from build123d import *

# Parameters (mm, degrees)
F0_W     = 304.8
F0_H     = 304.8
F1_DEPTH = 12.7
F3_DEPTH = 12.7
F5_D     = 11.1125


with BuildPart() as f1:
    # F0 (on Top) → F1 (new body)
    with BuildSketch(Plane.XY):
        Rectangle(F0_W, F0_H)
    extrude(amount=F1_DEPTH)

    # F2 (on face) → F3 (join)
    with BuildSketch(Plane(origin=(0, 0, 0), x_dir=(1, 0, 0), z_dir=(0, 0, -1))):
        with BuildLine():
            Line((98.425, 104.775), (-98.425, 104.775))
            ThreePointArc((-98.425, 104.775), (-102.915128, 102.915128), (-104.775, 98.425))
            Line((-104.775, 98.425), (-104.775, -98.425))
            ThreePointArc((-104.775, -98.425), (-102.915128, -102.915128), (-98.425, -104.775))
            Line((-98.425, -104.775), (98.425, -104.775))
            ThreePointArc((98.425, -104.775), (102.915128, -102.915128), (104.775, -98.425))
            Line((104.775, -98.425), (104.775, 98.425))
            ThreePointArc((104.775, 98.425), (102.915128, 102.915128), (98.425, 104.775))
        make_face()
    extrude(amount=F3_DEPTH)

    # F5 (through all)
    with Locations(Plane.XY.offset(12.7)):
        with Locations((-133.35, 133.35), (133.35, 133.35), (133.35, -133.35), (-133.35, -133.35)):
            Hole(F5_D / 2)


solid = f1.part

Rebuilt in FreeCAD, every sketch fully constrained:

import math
import FreeCAD as App
import Part
import Sketcher
Q = App.Units.Quantity


def add_polygon(sketch, points):
    """Adds a closed chain of lines whose ends are joined by coincident constraints."""
    first, n = sketch.GeometryCount, len(points)
    for a, b in zip(points, points[1:] + points[:1]):
        sketch.addGeometry(Part.LineSegment(App.Vector(*a, 0), App.Vector(*b, 0)), False)
    for i in range(n):
        sketch.addConstraint(Sketcher.Constraint("Coincident", first + i, 2, first + (i + 1) % n, 1))

doc = App.newDocument("Part")
body = doc.addObject("PartDesign::Body", "Body")

# Sketch on XY plane
sketch1 = doc.addObject("Sketcher::SketchObject", "Sketch")
body.addObject(sketch1)
sketch1.AttachmentSupport = (doc.XY_Plane, [""])
sketch1.MapMode = "FlatFace"
add_polygon(sketch1, [(-152, 152), (-152, -152), (152, -152), (152, 152)])  # lines 0-3
sketch1.addConstraint([
    Sketcher.Constraint("Vertical", 0),
    Sketcher.Constraint("Horizontal", 1),
    Sketcher.Constraint("Vertical", 2),
    Sketcher.Constraint("Horizontal", 3),
    Sketcher.Constraint("Symmetric", 0, 2, 2, 2, -1, 1),
    Sketcher.Constraint("Equal", 3, 0),
    Sketcher.Constraint("DistanceX", 1, 1, 1, 2, Q("12 in")),
])
pad1 = doc.addObject("PartDesign::Pad", "Pad")
body.addObject(pad1)
pad1.Profile = sketch1
pad1.Length = Q("0.5 in")

# Sketch on XY plane
sketch2 = doc.addObject("Sketcher::SketchObject", "Sketch001")
body.addObject(sketch2)
sketch2.AttachmentSupport = (doc.XY_Plane, [""])
sketch2.MapMode = "FlatFace"
sketch2.addGeometry([
    Part.LineSegment(App.Vector(98, -105, 0), App.Vector(-98, -105, 0)),  # 0
    Part.ArcOfCircle(Part.Circle(App.Vector(-98, -98, 0), App.Vector(0, 0, 1), 6), math.radians(-180), math.radians(-90)),  # 1
    Part.LineSegment(App.Vector(-105, -98, 0), App.Vector(-105, 98, 0)),  # 2
    Part.ArcOfCircle(Part.Circle(App.Vector(-98, 98, 0), App.Vector(0, 0, 1), 6), math.radians(90), math.radians(180)),  # 3
    Part.LineSegment(App.Vector(-98, 105, 0), App.Vector(98, 105, 0)),  # 4
    Part.ArcOfCircle(Part.Circle(App.Vector(98, 98, 0), App.Vector(0, 0, 1), 6), math.radians(0), math.radians(90)),  # 5
    Part.LineSegment(App.Vector(105, 98, 0), App.Vector(105, -98, 0)),  # 6
    Part.ArcOfCircle(Part.Circle(App.Vector(98, -98, 0), App.Vector(0, 0, 1), 6), math.radians(-90), math.radians(0)),  # 7
], False)
sketch2.addConstraint([
    Sketcher.Constraint("Tangent", 0, 2, 1, 2),
    Sketcher.Constraint("Tangent", 1, 1, 2, 1),
    Sketcher.Constraint("Tangent", 2, 2, 3, 2),
    Sketcher.Constraint("Tangent", 3, 1, 4, 1),
    Sketcher.Constraint("Tangent", 4, 2, 5, 2),
    Sketcher.Constraint("Tangent", 5, 1, 6, 1),
    Sketcher.Constraint("Tangent", 6, 2, 7, 2),
    Sketcher.Constraint("Tangent", 7, 1, 0, 1),
    Sketcher.Constraint("Horizontal", 0),
    Sketcher.Constraint("Vertical", 2),
    Sketcher.Constraint("Horizontal", 4),
    Sketcher.Constraint("Vertical", 6),
    Sketcher.Constraint("Equal", 1, 3),
    Sketcher.Constraint("Equal", 3, 5),
    Sketcher.Constraint("Equal", 5, 7),
    Sketcher.Constraint("Symmetric", 1, 3, 5, 3, -1, 1),
    Sketcher.Constraint("Equal", 4, 2),
    Sketcher.Constraint("Radius", 1, Q("0.25 in")),
    Sketcher.Constraint("DistanceY", 0, 2, 3, 3, Q("8 in")),
])
pad2 = doc.addObject("PartDesign::Pad", "Pad001")
body.addObject(pad2)
pad2.Profile = sketch2
pad2.Length = Q("0.5 in")
pad2.Reversed = True

# Sketch on XY plane
sketch3 = doc.addObject("Sketcher::SketchObject", "Sketch002")
body.addObject(sketch3)
sketch3.AttachmentSupport = (doc.XY_Plane, [""])
sketch3.MapMode = "FlatFace"
sketch3.AttachmentOffset = App.Placement(App.Vector(0, 0, 0.5 * 25.4), App.Rotation())
sketch3.addGeometry([
    Part.Circle(App.Vector(-133, 133, 0), App.Vector(0, 0, 1), 6),
    Part.Circle(App.Vector(133, 133, 0), App.Vector(0, 0, 1), 6),
    Part.Circle(App.Vector(133, -133, 0), App.Vector(0, 0, 1), 6),
    Part.Circle(App.Vector(-133, -133, 0), App.Vector(0, 0, 1), 6),
], False)
sketch3.addConstraint([
    Sketcher.Constraint("Equal", 0, 1),
    Sketcher.Constraint("Equal", 1, 2),
    Sketcher.Constraint("Equal", 2, 3),
    Sketcher.Constraint("Symmetric", 0, 3, 2, 3, -1, 1),
    Sketcher.Constraint("Symmetric", 1, 3, 3, 3, -1, 1),
    Sketcher.Constraint("Symmetric", 0, 3, 1, 3, -2),
    Sketcher.Constraint("Diameter", 0, Q("0.4375 in")),
    Sketcher.Constraint("DistanceX", 0, 3, 1, 3, Q("10.5 in")),
    Sketcher.Constraint("DistanceY", 2, 3, 1, 3, Q("10.5 in")),
])
doc.recompute()
hole = doc.addObject("PartDesign::Hole", "Hole")
body.addObject(hole)
hole.Profile = sketch3
hole.ThreadType = "None"
hole.Diameter = Q("0.4375 in")
hole.DepthType = "ThroughAll"

doc.recompute()
